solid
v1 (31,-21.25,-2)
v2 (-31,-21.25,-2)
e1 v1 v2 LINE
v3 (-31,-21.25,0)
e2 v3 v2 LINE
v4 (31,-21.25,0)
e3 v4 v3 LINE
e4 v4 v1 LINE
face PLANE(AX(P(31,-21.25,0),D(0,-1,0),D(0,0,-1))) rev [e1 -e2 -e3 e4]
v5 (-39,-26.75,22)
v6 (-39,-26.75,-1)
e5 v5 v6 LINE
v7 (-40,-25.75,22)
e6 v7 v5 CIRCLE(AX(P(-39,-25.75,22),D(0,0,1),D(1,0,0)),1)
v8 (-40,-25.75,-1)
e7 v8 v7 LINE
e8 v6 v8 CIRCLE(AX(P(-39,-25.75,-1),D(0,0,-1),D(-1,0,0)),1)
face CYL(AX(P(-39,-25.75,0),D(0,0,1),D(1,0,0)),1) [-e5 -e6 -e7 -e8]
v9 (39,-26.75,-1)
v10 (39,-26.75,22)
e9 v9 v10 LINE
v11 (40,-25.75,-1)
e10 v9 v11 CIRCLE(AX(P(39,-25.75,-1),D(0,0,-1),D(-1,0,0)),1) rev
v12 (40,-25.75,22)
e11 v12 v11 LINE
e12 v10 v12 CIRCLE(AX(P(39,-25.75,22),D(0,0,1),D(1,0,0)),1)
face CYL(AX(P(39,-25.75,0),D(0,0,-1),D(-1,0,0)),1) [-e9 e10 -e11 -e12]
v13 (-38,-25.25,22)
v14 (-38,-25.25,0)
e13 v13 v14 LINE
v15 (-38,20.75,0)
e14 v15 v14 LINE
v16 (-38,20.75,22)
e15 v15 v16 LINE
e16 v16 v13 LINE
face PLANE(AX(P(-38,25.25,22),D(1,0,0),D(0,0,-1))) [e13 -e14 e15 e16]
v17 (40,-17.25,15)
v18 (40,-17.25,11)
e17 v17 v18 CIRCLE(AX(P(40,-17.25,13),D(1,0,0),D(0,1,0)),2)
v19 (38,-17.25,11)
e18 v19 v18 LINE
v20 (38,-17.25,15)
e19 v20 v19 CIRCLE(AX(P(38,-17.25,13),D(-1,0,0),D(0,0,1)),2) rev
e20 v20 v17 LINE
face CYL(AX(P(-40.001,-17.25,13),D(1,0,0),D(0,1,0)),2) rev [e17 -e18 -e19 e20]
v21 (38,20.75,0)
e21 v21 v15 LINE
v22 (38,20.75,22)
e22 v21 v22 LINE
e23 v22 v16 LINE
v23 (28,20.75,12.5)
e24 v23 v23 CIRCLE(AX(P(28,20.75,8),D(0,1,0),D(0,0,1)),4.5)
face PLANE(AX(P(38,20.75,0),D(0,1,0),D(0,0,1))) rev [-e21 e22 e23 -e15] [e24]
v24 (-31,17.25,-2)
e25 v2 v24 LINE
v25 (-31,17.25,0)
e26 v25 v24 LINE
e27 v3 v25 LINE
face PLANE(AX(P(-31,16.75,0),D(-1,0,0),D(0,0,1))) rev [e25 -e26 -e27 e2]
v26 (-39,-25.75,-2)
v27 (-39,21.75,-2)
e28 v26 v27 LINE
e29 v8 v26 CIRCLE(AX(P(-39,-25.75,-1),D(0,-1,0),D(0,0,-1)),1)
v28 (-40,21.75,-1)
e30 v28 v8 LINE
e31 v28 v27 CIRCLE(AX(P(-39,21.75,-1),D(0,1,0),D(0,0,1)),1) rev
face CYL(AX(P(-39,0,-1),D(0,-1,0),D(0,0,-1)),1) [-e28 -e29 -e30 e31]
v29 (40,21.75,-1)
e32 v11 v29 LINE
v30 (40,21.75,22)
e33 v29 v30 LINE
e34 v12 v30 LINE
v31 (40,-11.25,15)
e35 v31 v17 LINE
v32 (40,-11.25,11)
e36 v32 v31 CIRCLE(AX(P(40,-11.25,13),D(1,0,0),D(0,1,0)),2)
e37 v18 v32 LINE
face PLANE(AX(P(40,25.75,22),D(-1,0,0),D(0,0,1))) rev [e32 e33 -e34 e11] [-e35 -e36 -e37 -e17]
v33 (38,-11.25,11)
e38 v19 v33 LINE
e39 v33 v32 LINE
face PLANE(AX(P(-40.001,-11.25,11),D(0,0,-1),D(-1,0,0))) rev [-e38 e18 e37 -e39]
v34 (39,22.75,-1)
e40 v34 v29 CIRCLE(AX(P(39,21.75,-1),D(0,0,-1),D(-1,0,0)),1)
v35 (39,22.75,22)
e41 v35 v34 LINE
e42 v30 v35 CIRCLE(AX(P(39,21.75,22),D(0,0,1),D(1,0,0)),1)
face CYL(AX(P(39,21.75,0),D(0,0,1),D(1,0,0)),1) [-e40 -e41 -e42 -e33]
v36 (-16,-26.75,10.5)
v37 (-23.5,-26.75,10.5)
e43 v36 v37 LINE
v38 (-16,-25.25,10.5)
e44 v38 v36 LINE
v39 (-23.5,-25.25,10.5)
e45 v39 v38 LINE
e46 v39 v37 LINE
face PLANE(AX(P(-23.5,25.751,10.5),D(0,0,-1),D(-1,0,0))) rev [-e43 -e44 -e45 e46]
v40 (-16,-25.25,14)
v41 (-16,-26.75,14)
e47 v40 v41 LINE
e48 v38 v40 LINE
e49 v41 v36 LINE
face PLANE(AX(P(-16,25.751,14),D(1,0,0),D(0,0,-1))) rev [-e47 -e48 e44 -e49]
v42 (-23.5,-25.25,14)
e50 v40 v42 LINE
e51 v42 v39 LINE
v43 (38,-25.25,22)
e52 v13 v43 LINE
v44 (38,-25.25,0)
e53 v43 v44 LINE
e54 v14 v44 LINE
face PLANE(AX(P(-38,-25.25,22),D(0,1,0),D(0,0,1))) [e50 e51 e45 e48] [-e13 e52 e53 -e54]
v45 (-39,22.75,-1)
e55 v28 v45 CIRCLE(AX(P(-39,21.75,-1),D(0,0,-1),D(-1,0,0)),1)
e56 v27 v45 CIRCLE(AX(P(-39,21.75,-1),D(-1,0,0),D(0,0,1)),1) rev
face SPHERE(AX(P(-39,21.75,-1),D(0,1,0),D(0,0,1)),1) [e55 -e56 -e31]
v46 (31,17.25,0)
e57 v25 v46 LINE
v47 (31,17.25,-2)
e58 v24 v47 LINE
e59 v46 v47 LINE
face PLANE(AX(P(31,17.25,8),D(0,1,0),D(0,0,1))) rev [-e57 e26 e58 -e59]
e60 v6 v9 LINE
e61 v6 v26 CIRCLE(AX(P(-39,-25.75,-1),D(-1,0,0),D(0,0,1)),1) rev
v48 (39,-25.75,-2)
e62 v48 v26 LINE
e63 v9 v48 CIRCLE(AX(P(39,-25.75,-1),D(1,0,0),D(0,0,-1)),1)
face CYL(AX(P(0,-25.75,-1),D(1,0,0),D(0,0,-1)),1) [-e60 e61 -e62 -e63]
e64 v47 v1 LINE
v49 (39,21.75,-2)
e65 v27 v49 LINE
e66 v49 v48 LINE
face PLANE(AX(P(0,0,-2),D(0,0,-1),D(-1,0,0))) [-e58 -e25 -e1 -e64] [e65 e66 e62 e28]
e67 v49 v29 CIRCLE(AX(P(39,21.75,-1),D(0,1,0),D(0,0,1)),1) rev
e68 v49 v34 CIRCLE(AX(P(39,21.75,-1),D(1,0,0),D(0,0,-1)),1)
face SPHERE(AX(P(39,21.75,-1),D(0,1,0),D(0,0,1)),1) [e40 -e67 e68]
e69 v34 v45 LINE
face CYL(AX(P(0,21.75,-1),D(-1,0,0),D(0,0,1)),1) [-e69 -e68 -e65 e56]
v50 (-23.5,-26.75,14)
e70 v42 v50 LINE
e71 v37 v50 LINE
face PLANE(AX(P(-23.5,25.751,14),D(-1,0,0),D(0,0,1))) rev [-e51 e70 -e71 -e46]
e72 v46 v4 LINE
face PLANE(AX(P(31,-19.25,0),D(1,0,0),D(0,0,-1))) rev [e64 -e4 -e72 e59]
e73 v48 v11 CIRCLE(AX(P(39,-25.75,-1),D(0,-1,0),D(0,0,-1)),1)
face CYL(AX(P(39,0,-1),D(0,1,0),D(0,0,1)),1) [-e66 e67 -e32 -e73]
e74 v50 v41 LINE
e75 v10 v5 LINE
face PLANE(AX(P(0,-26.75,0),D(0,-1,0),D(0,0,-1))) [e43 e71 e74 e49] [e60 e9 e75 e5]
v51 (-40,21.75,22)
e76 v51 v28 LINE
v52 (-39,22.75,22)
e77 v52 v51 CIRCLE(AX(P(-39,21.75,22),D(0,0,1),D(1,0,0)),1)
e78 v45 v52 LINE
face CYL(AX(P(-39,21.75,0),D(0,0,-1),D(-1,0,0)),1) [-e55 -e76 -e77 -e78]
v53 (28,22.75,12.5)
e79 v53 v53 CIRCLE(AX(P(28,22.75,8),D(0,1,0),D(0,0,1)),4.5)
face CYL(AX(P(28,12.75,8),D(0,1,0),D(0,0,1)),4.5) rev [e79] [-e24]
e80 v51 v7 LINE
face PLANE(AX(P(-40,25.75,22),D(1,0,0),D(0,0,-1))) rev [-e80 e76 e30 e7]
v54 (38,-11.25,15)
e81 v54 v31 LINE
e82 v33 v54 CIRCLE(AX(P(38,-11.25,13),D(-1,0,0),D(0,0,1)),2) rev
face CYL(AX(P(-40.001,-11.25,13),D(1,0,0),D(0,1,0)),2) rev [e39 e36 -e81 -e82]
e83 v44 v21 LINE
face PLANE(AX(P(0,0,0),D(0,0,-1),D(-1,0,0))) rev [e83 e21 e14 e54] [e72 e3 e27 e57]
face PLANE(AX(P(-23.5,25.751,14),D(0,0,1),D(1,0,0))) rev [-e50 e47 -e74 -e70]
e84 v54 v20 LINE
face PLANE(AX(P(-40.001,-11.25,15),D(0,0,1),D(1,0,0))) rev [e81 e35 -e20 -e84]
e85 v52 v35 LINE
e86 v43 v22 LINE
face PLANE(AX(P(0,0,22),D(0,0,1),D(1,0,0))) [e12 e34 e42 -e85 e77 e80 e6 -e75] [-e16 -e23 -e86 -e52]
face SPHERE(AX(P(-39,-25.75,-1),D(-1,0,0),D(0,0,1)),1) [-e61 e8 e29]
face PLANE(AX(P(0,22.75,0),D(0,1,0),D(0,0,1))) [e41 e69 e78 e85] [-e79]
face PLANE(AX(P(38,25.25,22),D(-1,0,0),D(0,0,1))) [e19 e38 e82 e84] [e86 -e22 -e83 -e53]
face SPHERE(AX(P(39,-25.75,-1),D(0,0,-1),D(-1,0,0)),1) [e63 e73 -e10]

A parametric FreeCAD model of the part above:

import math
import FreeCAD as App
import Part
import Sketcher
from FreeCAD import Vector


def edges_at(feature, points):
    """Names of the edges that pass closest to the given points."""
    edges = feature.Shape.Edges
    near = lambda p: min(range(len(edges)), key=lambda i: edges[i].distToShape(Part.Vertex(*p))[0])
    return sorted({f"Edge{near(p) + 1}" for p in points})


def add_polygon(sketch, points):
    """Adds a closed chain of lines whose ends are joined by coincident constraints."""
    first, n = sketch.GeometryCount, len(points)
    for a, b in zip(points, points[1:] + points[:1]):
        sketch.addGeometry(Part.LineSegment(App.Vector(*a, 0), App.Vector(*b, 0)), False)
    for i in range(n):
        sketch.addConstraint(Sketcher.Constraint("Coincident", first + i, 2, first + (i + 1) % n, 1))

doc = App.newDocument("Part")
params = doc.addObject("Spreadsheet::Sheet", "Params")
for row, (alias, value) in enumerate([
    ("sketch1_width", "80 mm"),
    ("sketch1_width2", "76 mm"),
    ("sketch1_height", "51.5 mm"),
    ("sketch1_height2", "50.5 mm"),
    ("pad1_length", "22 mm"),
    ("sketch2_width", "80 mm"),
    ("sketch2_height", "51.5 mm"),
    ("pad2_length", "2 mm"),
    ("sketch3_radius", "2 mm"),
    ("sketch3_width", "6 mm"),
    ("sketch4_width", "7.5 mm"),
    ("sketch4_height", "3.5 mm"),
    ("sketch5_width", "76 mm"),
    ("sketch5_height", "20 mm"),
    ("sketch6_width", "80 mm"),
    ("sketch6_height", "51.5 mm"),
    ("pad3_length", "2 mm"),
    ("sketch7_width", "62 mm"),
    ("sketch7_height", "36 mm"),
    ("pocket4_length", "2 mm"),
    ("sketch8_width", "80 mm"),
    ("sketch8_height", "24 mm"),
    ("pad4_length", "1 mm"),
    ("sketch9_width", "7.5 mm"),
    ("sketch9_height", "3.5 mm"),
    ("pocket5_length", "1 mm"),
    ("sketch10_width", "62 mm"),
    ("sketch10_height", "2 mm"),
    ("pocket6_length", "2 mm"),
    ("sketch11_width", "80 mm"),
    ("sketch11_height", "24 mm"),
    ("pocket7_length", "3 mm"),
    ("sketch12_width", "76 mm"),
    ("sketch12_height", "2 mm"),
    ("pad5_length", "20 mm"),
    ("sketch13_width", "76 mm"),
    ("sketch13_height", "46 mm"),
    ("pocket8_length", "10 mm"),
    ("fillet_radius", "1 mm"),
    ("sketch14_diameter", "9 mm"),
    ("pocket9_length", "10 mm"),
    ("sketch15_width", "62 mm"),
    ("sketch15_height", "0.5 mm"),
    ("pocket10_length", "10 mm"),
], start=1):
    params.set(f"A{row}", alias)
    params.set(f"B{row}", "=" + value)
    params.setAlias(f"B{row}", alias)

body = doc.addObject("PartDesign::Body", "Body")

# Sketch on XY plane
sketch1 = body.newObject("Sketcher::SketchObject", "Sketch")
sketch1.AttachmentSupport = (doc.getObject("XY_Plane"), [""])
sketch1.MapMode = "FlatFace"
add_polygon(sketch1, [(-40, 25.75), (-40, -25.75), (40, -25.75), (40, 25.75)])  # lines 0-3
add_polygon(sketch1, [(38, -25.25), (-38, -25.25), (-38, 25.25), (38, 25.25)])  # lines 4-7
sketch1.addConstraint([
    Sketcher.Constraint("Vertical", 0),
    Sketcher.Constraint("Horizontal", 1),
    Sketcher.Constraint("Vertical", 2),
    Sketcher.Constraint("Horizontal", 3),
    Sketcher.Constraint("Horizontal", 4),
    Sketcher.Constraint("Vertical", 5),
    Sketcher.Constraint("Horizontal", 6),
    Sketcher.Constraint("Vertical", 7),
    Sketcher.Constraint("Symmetric", 0, 2, 2, 2, -1, 1),
    Sketcher.Constraint("Symmetric", 4, 2, 6, 2, -1, 1),
    Sketcher.Constraint("DistanceX", 1, 1, 1, 2, 80.0),
    Sketcher.Constraint("DistanceX", 4, 2, 4, 1, 76.0),
    Sketcher.Constraint("DistanceY", 0, 2, 0, 1, 51.5),
    Sketcher.Constraint("DistanceY", 5, 1, 5, 2, 50.5),
])
sketch1.setExpression("Constraints[18]", "Params.sketch1_width")
sketch1.setExpression("Constraints[19]", "Params.sketch1_width2")
sketch1.setExpression("Constraints[20]", "Params.sketch1_height")
sketch1.setExpression("Constraints[21]", "Params.sketch1_height2")
pad1 = body.newObject("PartDesign::Pad", "Pad")
pad1.Profile = sketch1
pad1.setExpression("Length", "Params.pad1_length")

# Sketch on XY plane
sketch2 = body.newObject("Sketcher::SketchObject", "Sketch001")
sketch2.AttachmentSupport = (doc.getObject("XY_Plane"), [""])
sketch2.MapMode = "FlatFace"
sketch2.AttachmentOffset = App.Placement(Vector(0, 0, 22), App.Rotation())
add_polygon(sketch2, [(-40, 25.75), (-40, -25.75), (40, -25.75), (40, 25.75)])  # lines 0-3
sketch2.addConstraint([
    Sketcher.Constraint("Vertical", 0),
    Sketcher.Constraint("Horizontal", 1),
    Sketcher.Constraint("Vertical", 2),
    Sketcher.Constraint("Horizontal", 3),
    Sketcher.Constraint("Symmetric", 0, 2, 2, 2, -1, 1),
    Sketcher.Constraint("DistanceX", 1, 1, 1, 2, 80.0),
    Sketcher.Constraint("DistanceY", 0, 2, 0, 1, 51.5),
])
sketch2.setExpression("Constraints[9]", "Params.sketch2_width")
sketch2.setExpression("Constraints[10]", "Params.sketch2_height")
pad2 = body.newObject("PartDesign::Pad", "Pad001")
pad2.Profile = sketch2
pad2.setExpression("Length", "Params.pad2_length")
pad2.Reversed = True

# Sketch on YZ plane
sketch3 = body.newObject("Sketcher::SketchObject", "Sketch002")
sketch3.AttachmentSupport = (doc.getObject("YZ_Plane"), [""])
sketch3.MapMode = "FlatFace"
sketch3.AttachmentOffset = App.Placement(Vector(0, 0, 40), App.Rotation())
sketch3.addGeometry([
    Part.LineSegment(Vector(-17.25, 11, 0), Vector(-11.25, 11, 0)),
    Part.ArcOfCircle(Part.Circle(Vector(-11.25, 13, 0), Vector(0, 0, 1), 2), math.radians(-90), math.radians(90)),
    Part.LineSegment(Vector(-11.25, 15, 0), Vector(-17.25, 15, 0)),
    Part.ArcOfCircle(Part.Circle(Vector(-17.25, 13, 0), Vector(0, 0, 1), 2), math.radians(90), math.radians(270)),
], False)
sketch3.addConstraint([
    Sketcher.Constraint("Tangent", 0, 2, 1, 1),
    Sketcher.Constraint("Tangent", 1, 2, 2, 1),
    Sketcher.Constraint("Tangent", 2, 2, 3, 1),
    Sketcher.Constraint("Tangent", 3, 2, 0, 1),
    Sketcher.Constraint("Horizontal", 0),
    Sketcher.Constraint("Horizontal", 2),
    Sketcher.Constraint("Radius", 1, 2.0),
    Sketcher.Constraint("DistanceX", 0, 1, 0, 2, 6.0),
    Sketcher.Constraint("DistanceY", -1, 1, 1, 3, 13.0),
    Sketcher.Constraint("DistanceX", 1, 3, -1, 1, 11.25),
])
sketch3.setExpression("Constraints[6]", "Params.sketch3_radius")
sketch3.setExpression("Constraints[7]", "Params.sketch3_width")
pocket1 = body.newObject("PartDesign::Pocket", "Pocket")
pocket1.Profile = sketch3
pocket1.Type = "UpToFirst"

# Sketch on XZ plane
sketch4 = body.newObject("Sketcher::SketchObject", "Sketch003")
sketch4.AttachmentSupport = (doc.getObject("XZ_Plane"), [""])
sketch4.MapMode = "FlatFace"
sketch4.AttachmentOffset = App.Placement(Vector(0, 0, 25.75), App.Rotation())
add_polygon(sketch4, [(-23.5, 14), (-23.5, 10.5), (-16, 10.5), (-16, 14)])  # lines 0-3
sketch4.addConstraint([
    Sketcher.Constraint("Vertical", 0),
    Sketcher.Constraint("Horizontal", 1),
    Sketcher.Constraint("Vertical", 2),
    Sketcher.Constraint("Horizontal", 3),
    Sketcher.Constraint("DistanceX", 1, 1, 1, 2, 7.5),
    Sketcher.Constraint("DistanceY", 0, 2, 0, 1, 3.5),
    Sketcher.Constraint("DistanceX", 1, 2, -1, 1, 16.0),
    Sketcher.Constraint("DistanceY", -1, 1, 2, 2, 14.0),
])
sketch4.setExpression("Constraints[8]", "Params.sketch4_width")
sketch4.setExpression("Constraints[9]", "Params.sketch4_height")
pocket2 = body.newObject("PartDesign::Pocket", "Pocket001")
pocket2.Profile = sketch4
pocket2.Type = "UpToFirst"

# Sketch on XZ plane
sketch5 = body.newObject("Sketcher::SketchObject", "Sketch004")
sketch5.AttachmentSupport = (doc.getObject("XZ_Plane"), [""])
sketch5.MapMode = "FlatFace"
sketch5.AttachmentOffset = App.Placement(Vector(0, 0, -25.75), App.Rotation())
add_polygon(sketch5, [(-38, 0), (-38, 20), (38, 20), (38, 0)])  # lines 0-3
sketch5.addConstraint([
    Sketcher.Constraint("Vertical", 0),
    Sketcher.Constraint("Horizontal", 1),
    Sketcher.Constraint("Vertical", 2),
    Sketcher.Constraint("Horizontal", 3),
    Sketcher.Constraint("Symmetric", 2, 2, 3, 2, -1, 1),
    Sketcher.Constraint("DistanceX", 1, 1, 1, 2, 76.0),
    Sketcher.Constraint("DistanceY", 0, 1, 0, 2, 20.0),
])
sketch5.setExpression("Constraints[9]", "Params.sketch5_width")
sketch5.setExpression("Constraints[10]", "Params.sketch5_height")
pocket3 = body.newObject("PartDesign::Pocket", "Pocket002")
pocket3.Profile = sketch5
pocket3.Type = "UpToFirst"
pocket3.Reversed = True

# Sketch on XY plane
sketch6 = body.newObject("Sketcher::SketchObject", "Sketch005")
sketch6.AttachmentSupport = (doc.getObject("XY_Plane"), [""])
sketch6.MapMode = "FlatFace"
add_polygon(sketch6, [(40, 25.75), (40, -25.75), (-40, -25.75), (-40, 25.75)])  # lines 0-3
sketch6.addConstraint([
    Sketcher.Constraint("Vertical", 0),
    Sketcher.Constraint("Horizontal", 1),
    Sketcher.Constraint("Vertical", 2),
    Sketcher.Constraint("Horizontal", 3),
    Sketcher.Constraint("Symmetric", 0, 2, 2, 2, -1, 1),
    Sketcher.Constraint("DistanceX", 1, 2, 1, 1, 80.0),
    Sketcher.Constraint("DistanceY", 0, 2, 0, 1, 51.5),
])
sketch6.setExpression("Constraints[9]", "Params.sketch6_width")
sketch6.setExpression("Constraints[10]", "Params.sketch6_height")
pad3 = body.newObject("PartDesign::Pad", "Pad002")
pad3.Profile = sketch6
pad3.setExpression("Length", "Params.pad3_length")
pad3.Reversed = True

# Sketch on XY plane
sketch7 = body.newObject("Sketcher::SketchObject", "Sketch006")
sketch7.AttachmentSupport = (doc.getObject("XY_Plane"), [""])
sketch7.MapMode = "FlatFace"
sketch7.AttachmentOffset = App.Placement(Vector(0, 0, -2), App.Rotation())
add_polygon(sketch7, [(31, 16.75), (31, -19.25), (-31, -19.25), (-31, 16.75)])  # lines 0-3
sketch7.addConstraint([
    Sketcher.Constraint("Vertical", 0),
    Sketcher.Constraint("Horizontal", 1),
    Sketcher.Constraint("Vertical", 2),
    Sketcher.Constraint("Horizontal", 3),
    Sketcher.Constraint("DistanceX", 1, 2, 1, 1, 62.0),
    Sketcher.Constraint("DistanceY", 0, 2, 0, 1, 36.0),
    Sketcher.Constraint("DistanceX", -1, 1, 0, 2, 31.0),
    Sketcher.Constraint("DistanceY", 0, 2, -1, 1, 19.25),
])
sketch7.setExpression("Constraints[8]", "Params.sketch7_width")
sketch7.setExpression("Constraints[9]", "Params.sketch7_height")
pocket4 = body.newObject("PartDesign::Pocket", "Pocket003")
pocket4.Profile = sketch7
pocket4.setExpression("Length", "Params.pocket4_length")
pocket4.Reversed = True

# Sketch on XZ plane
sketch8 = body.newObject("Sketcher::SketchObject", "Sketch007")
sketch8.AttachmentSupport = (doc.getObject("XZ_Plane"), [""])
sketch8.MapMode = "FlatFace"
sketch8.AttachmentOffset = App.Placement(Vector(0, 0, 25.75), App.Rotation())
add_polygon(sketch8, [(-40, 22), (-40, -2), (40, -2), (40, 22)])  # lines 0-3
sketch8.addConstraint([
    Sketcher.Constraint("Vertical", 0),
    Sketcher.Constraint("Horizontal", 1),
    Sketcher.Constraint("Vertical", 2),
    Sketcher.Constraint("Horizontal", 3),
    Sketcher.Constraint("DistanceX", 1, 1, 1, 2, 80.0),
    Sketcher.Constraint("DistanceY", 0, 2, 0, 1, 24.0),
    Sketcher.Constraint("DistanceX", 0, 2, -1, 1, 40.0),
    Sketcher.Constraint("DistanceY", 0, 2, -1, 1, 2.0),
])
sketch8.setExpression("Constraints[8]", "Params.sketch8_width")
sketch8.setExpression("Constraints[9]", "Params.sketch8_height")
pad4 = body.newObject("PartDesign::Pad", "Pad003")
pad4.Profile = sketch8
pad4.setExpression("Length", "Params.pad4_length")

# Sketch on XZ plane
sketch9 = body.newObject("Sketcher::SketchObject", "Sketch008")
sketch9.AttachmentSupport = (doc.getObject("XZ_Plane"), [""])
sketch9.MapMode = "FlatFace"
sketch9.AttachmentOffset = App.Placement(Vector(0, 0, 25.75), App.Rotation())
add_polygon(sketch9, [(-23.5, 10.5), (-23.5, 14), (-16, 14), (-16, 10.5)])  # lines 0-3
sketch9.addConstraint([
    Sketcher.Constraint("Vertical", 0),
    Sketcher.Constraint("Horizontal", 1),
    Sketcher.Constraint("Vertical", 2),
    Sketcher.Constraint("Horizontal", 3),
    Sketcher.Constraint("DistanceX", 1, 1, 1, 2, 7.5),
    Sketcher.Constraint("DistanceY", 0, 1, 0, 2, 3.5),
    Sketcher.Constraint("DistanceY", -1, 1, 0, 2, 14.0),
    Sketcher.Constraint("DistanceX", 1, 2, -1, 1, 16.0),
])
sketch9.setExpression("Constraints[8]", "Params.sketch9_width")
sketch9.setExpression("Constraints[9]", "Params.sketch9_height")
pocket5 = body.newObject("PartDesign::Pocket", "Pocket004")
pocket5.Profile = sketch9
pocket5.setExpression("Length", "Params.pocket5_length")
pocket5.Reversed = True

# Sketch on XY plane
sketch10 = body.newObject("Sketcher::SketchObject", "Sketch009")
sketch10.AttachmentSupport = (doc.getObject("XY_Plane"), [""])
sketch10.MapMode = "FlatFace"
sketch10.AttachmentOffset = App.Placement(Vector(0, 0, -2), App.Rotation())
add_polygon(sketch10, [(31, -19.25), (31, -21.25), (-31, -21.25), (-31, -19.25)])  # lines 0-3
sketch10.addConstraint([
    Sketcher.Constraint("Vertical", 0),
    Sketcher.Constraint("Horizontal", 1),
    Sketcher.Constraint("Vertical", 2),
    Sketcher.Constraint("Horizontal", 3),
    Sketcher.Constraint("DistanceX", 1, 2, 1, 1, 62.0),
    Sketcher.Constraint("DistanceY", 0, 2, 0, 1, 2.0),
    Sketcher.Constraint("DistanceX", -1, 1, 0, 2, 31.0),
    Sketcher.Constraint("DistanceY", 0, 2, -1, 1, 21.25),
])
sketch10.setExpression("Constraints[8]", "Params.sketch10_width")
sketch10.setExpression("Constraints[9]", "Params.sketch10_height")
pocket6 = body.newObject("PartDesign::Pocket", "Pocket005")
pocket6.Profile = sketch10
pocket6.setExpression("Length", "Params.pocket6_length")
pocket6.Reversed = True

# Sketch on XZ plane
sketch11 = body.newObject("Sketcher::SketchObject", "Sketch010")
sketch11.AttachmentSupport = (doc.getObject("XZ_Plane"), [""])
sketch11.MapMode = "FlatFace"
sketch11.AttachmentOffset = App.Placement(Vector(0, 0, -25.75), App.Rotation())
add_polygon(sketch11, [(-40, -2), (-40, 22), (40, 22), (40, -2)])  # lines 0-3
sketch11.addConstraint([
    Sketcher.Constraint("Vertical", 0),
    Sketcher.Constraint("Horizontal", 1),
    Sketcher.Constraint("Vertical", 2),
    Sketcher.Constraint("Horizontal", 3),
    Sketcher.Constraint("DistanceX", 1, 1, 1, 2, 80.0),
    Sketcher.Constraint("DistanceY", 0, 1, 0, 2, 24.0),
    Sketcher.Constraint("DistanceX", 0, 2, -1, 1, 40.0),
    Sketcher.Constraint("DistanceY", -1, 1, 0, 2, 22.0),
])
sketch11.setExpression("Constraints[8]", "Params.sketch11_width")
sketch11.setExpression("Constraints[9]", "Params.sketch11_height")
pocket7 = body.newObject("PartDesign::Pocket", "Pocket006")
pocket7.Profile = sketch11
pocket7.setExpression("Length", "Params.pocket7_length")
pocket7.Reversed = True

# Sketch on XY plane
sketch12 = body.newObject("Sketcher::SketchObject", "Sketch011")
sketch12.AttachmentSupport = (doc.getObject("XY_Plane"), [""])
sketch12.MapMode = "FlatFace"
sketch12.AttachmentOffset = App.Placement(Vector(0, 0, 20), App.Rotation())
add_polygon(sketch12, [(38, 22.75), (38, 20.75), (-38, 20.75), (-38, 22.75)])  # lines 0-3
sketch12.addConstraint([
    Sketcher.Constraint("Vertical", 0),
    Sketcher.Constraint("Horizontal", 1),
    Sketcher.Constraint("Vertical", 2),
    Sketcher.Constraint("Horizontal", 3),
    Sketcher.Constraint("DistanceX", 1, 2, 1, 1, 76.0),
    Sketcher.Constraint("DistanceY", 0, 2, 0, 1, 2.0),
    Sketcher.Constraint("DistanceX", -1, 1, 0, 2, 38.0),
    Sketcher.Constraint("DistanceY", -1, 1, 0, 2, 20.75),
])
sketch12.setExpression("Constraints[8]", "Params.sketch12_width")
sketch12.setExpression("Constraints[9]", "Params.sketch12_height")
pad5 = body.newObject("PartDesign::Pad", "Pad004")
pad5.Profile = sketch12
pad5.setExpression("Length", "Params.pad5_length")
pad5.Reversed = True

# Sketch on XY plane
sketch13 = body.newObject("Sketcher::SketchObject", "Sketch012")
sketch13.AttachmentSupport = (doc.getObject("XY_Plane"), [""])
sketch13.MapMode = "FlatFace"
sketch13.AttachmentOffset = App.Placement(Vector(0, 0, 20), App.Rotation())
add_polygon(sketch13, [(38, 20.75), (38, -25.25), (-38, -25.25), (-38, 20.75)])  # lines 0-3
sketch13.addConstraint([
    Sketcher.Constraint("Vertical", 0),
    Sketcher.Constraint("Horizontal", 1),
    Sketcher.Constraint("Vertical", 2),
    Sketcher.Constraint("Horizontal", 3),
    Sketcher.Constraint("DistanceX", 1, 2, 1, 1, 76.0),
    Sketcher.Constraint("DistanceY", 0, 2, 0, 1, 46.0),
    Sketcher.Constraint("DistanceX", -1, 1, 0, 2, 38.0),
    Sketcher.Constraint("DistanceY", 0, 2, -1, 1, 25.25),
])
sketch13.setExpression("Constraints[8]", "Params.sketch13_width")
sketch13.setExpression("Constraints[9]", "Params.sketch13_height")
pocket8 = body.newObject("PartDesign::Pocket", "Pocket007")
pocket8.Profile = sketch13
pocket8.setExpression("Length", "Params.pocket8_length")
pocket8.Reversed = True
doc.recompute()

fillet = body.newObject("PartDesign::Fillet", "Fillet")
fillet.Base = (pocket8, edges_at(pocket8, [
    (-40, -26.75, 10),
    (0, -26.75, -2),
    (40, -26.75, 10),
    (40, -2, -2),
    (-40, 22.75, 10),
    (0, 22.75, -2),
    (40, 22.75, 10),
    (-40, -2, -2),
]))
fillet.setExpression("Radius", "Params.fillet_radius")

# Sketch on XZ plane
sketch14 = body.newObject("Sketcher::SketchObject", "Sketch013")
sketch14.AttachmentSupport = (doc.getObject("XZ_Plane"), [""])
sketch14.MapMode = "FlatFace"
sketch14.AttachmentOffset = App.Placement(Vector(0, 0, -22.75), App.Rotation())
sketch14.addGeometry(Part.Circle(Vector(28, 8, 0), Vector(0, 0, 1), 4.5), False)
sketch14.addConstraint([
    Sketcher.Constraint("Diameter", 0, 9.0),
    Sketcher.Constraint("DistanceX", -1, 1, 0, 3, 28.0),
    Sketcher.Constraint("DistanceY", -1, 1, 0, 3, 8.0),
])
sketch14.setExpression("Constraints[0]", "Params.sketch14_diameter")
pocket9 = body.newObject("PartDesign::Pocket", "Pocket008")
pocket9.Profile = sketch14
pocket9.setExpression("Length", "Params.pocket9_length")
pocket9.Reversed = True

# Sketch on XY plane
sketch15 = body.newObject("Sketcher::SketchObject", "Sketch014")
sketch15.AttachmentSupport = (doc.getObject("XY_Plane"), [""])
sketch15.MapMode = "FlatFace"
sketch15.AttachmentOffset = App.Placement(Vector(0, 0, -2), App.Rotation())
add_polygon(sketch15, [(31, 17.25), (31, 16.75), (-31, 16.75), (-31, 17.25)])  # lines 0-3
sketch15.addConstraint([
    Sketcher.Constraint("Vertical", 0),
    Sketcher.Constraint("Horizontal", 1),
    Sketcher.Constraint("Vertical", 2),
    Sketcher.Constraint("Horizontal", 3),
    Sketcher.Constraint("DistanceX", 1, 2, 1, 1, 62.0),
    Sketcher.Constraint("DistanceY", 0, 2, 0, 1, 0.5),
    Sketcher.Constraint("DistanceX", -1, 1, 0, 2, 31.0),
    Sketcher.Constraint("DistanceY", -1, 1, 0, 2, 16.75),
])
sketch15.setExpression("Constraints[8]", "Params.sketch15_width")
sketch15.setExpression("Constraints[9]", "Params.sketch15_height")
pocket10 = body.newObject("PartDesign::Pocket", "Pocket009")
pocket10.Profile = sketch15
pocket10.setExpression("Length", "Params.pocket10_length")
pocket10.Reversed = True

doc.recompute()
